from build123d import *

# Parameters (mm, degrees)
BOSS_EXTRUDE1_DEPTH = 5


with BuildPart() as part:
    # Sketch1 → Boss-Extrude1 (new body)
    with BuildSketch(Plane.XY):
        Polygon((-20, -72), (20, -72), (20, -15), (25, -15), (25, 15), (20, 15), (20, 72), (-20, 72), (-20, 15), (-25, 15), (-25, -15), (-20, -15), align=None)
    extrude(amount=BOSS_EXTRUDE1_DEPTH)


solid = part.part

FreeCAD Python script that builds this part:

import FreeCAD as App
import Part
import Sketcher
from FreeCAD import Vector

doc = App.newDocument("Part")
params = doc.addObject("Spreadsheet::Sheet", "Params")
for row, (alias, value) in enumerate([
    ("sketch1_width", "40 mm"),
    ("sketch1_width2", "5 mm"),
    ("sketch1_height", "57 mm"),
    ("sketch1_height2", "30 mm"),
    ("pad1_length", "5 mm"),
], start=1):
    params.set(f"A{row}", alias)
    params.set(f"B{row}", "=" + value)
    params.setAlias(f"B{row}", alias)

body = doc.addObject("PartDesign::Body", "Body")

# Sketch on XY plane
sketch1 = body.newObject("Sketcher::SketchObject", "Sketch")
sketch1.AttachmentSupport = (doc.getObject("XY_Plane"), [""])
sketch1.MapMode = "FlatFace"
sketch1.addGeometry(Part.LineSegment(Vector(-20, -72, 0), Vector(20, -72, 0)), False)
sketch1.addGeometry(Part.LineSegment(Vector(20, -72, 0), Vector(20, -15, 0)), False)
sketch1.addGeometry(Part.LineSegment(Vector(20, -15, 0), Vector(25, -15, 0)), False)
sketch1.addGeometry(Part.LineSegment(Vector(25, -15, 0), Vector(25, 15, 0)), False)
sketch1.addGeometry(Part.LineSegment(Vector(25, 15, 0), Vector(20, 15, 0)), False)
sketch1.addGeometry(Part.LineSegment(Vector(20, 15, 0), Vector(20, 72, 0)), False)
sketch1.addGeometry(Part.LineSegment(Vector(20, 72, 0), Vector(-20, 72, 0)), False)
sketch1.addGeometry(Part.LineSegment(Vector(-20, 72, 0), Vector(-20, 15, 0)), False)
sketch1.addGeometry(Part.LineSegment(Vector(-20, 15, 0), Vector(-25, 15, 0)), False)
sketch1.addGeometry(Part.LineSegment(Vector(-25, 15, 0), Vector(-25, -15, 0)), False)
sketch1.addGeometry(Part.LineSegment(Vector(-25, -15, 0), Vector(-20, -15, 0)), False)
sketch1.addGeometry(Part.LineSegment(Vector(-20, -15, 0), Vector(-20, -72, 0)), False)
sketch1.addConstraint(Sketcher.Constraint("Coincident", 0, 2, 1, 1))
sketch1.addConstraint(Sketcher.Constraint("Coincident", 1, 2, 2, 1))
sketch1.addConstraint(Sketcher.Constraint("Coincident", 2, 2, 3, 1))
sketch1.addConstraint(Sketcher.Constraint("Coincident", 3, 2, 4, 1))
sketch1.addConstraint(Sketcher.Constraint("Coincident", 4, 2, 5, 1))
sketch1.addConstraint(Sketcher.Constraint("Coincident", 5, 2, 6, 1))
sketch1.addConstraint(Sketcher.Constraint("Coincident", 6, 2, 7, 1))
sketch1.addConstraint(Sketcher.Constraint("Coincident", 7, 2, 8, 1))
sketch1.addConstraint(Sketcher.Constraint("Coincident", 8, 2, 9, 1))
sketch1.addConstraint(Sketcher.Constraint("Coincident", 9, 2, 10, 1))
sketch1.addConstraint(Sketcher.Constraint("Coincident", 10, 2, 11, 1))
sketch1.addConstraint(Sketcher.Constraint("Coincident", 11, 2, 0, 1))
sketch1.addConstraint(Sketcher.Constraint("Horizontal", 0))
sketch1.addConstraint(Sketcher.Constraint("Vertical", 1))
sketch1.addConstraint(Sketcher.Constraint("Horizontal", 2))
sketch1.addConstraint(Sketcher.Constraint("Vertical", 3))
sketch1.addConstraint(Sketcher.Constraint("Horizontal", 4))
sketch1.addConstraint(Sketcher.Constraint("Vertical", 5))
sketch1.addConstraint(Sketcher.Constraint("Horizontal", 6))
sketch1.addConstraint(Sketcher.Constraint("Vertical", 7))
sketch1.addConstraint(Sketcher.Constraint("Horizontal", 8))
sketch1.addConstraint(Sketcher.Constraint("Vertical", 9))
sketch1.addConstraint(Sketcher.Constraint("Horizontal", 10))
sketch1.addConstraint(Sketcher.Constraint("Vertical", 11))
sketch1.addConstraint(Sketcher.Constraint("Symmetric", 0, 2, 6, 2, -1, 1))
sketch1.addConstraint(Sketcher.Constraint("Symmetric", 2, 2, 8, 2, -1, 1))
sketch1.addConstraint(Sketcher.Constraint("Symmetric", 4, 2, 10, 2, -1, 1))
sketch1.addConstraint(Sketcher.Constraint("Symmetric", 4, 2, 7, 2, -2))
sketch1.addConstraint(Sketcher.Constraint("DistanceX", 0, 1, 0, 2, 40.0))
sketch1.addConstraint(Sketcher.Constraint("DistanceX", 2, 1, 2, 2, 5.0))
sketch1.addConstraint(Sketcher.Constraint("DistanceY", 1, 1, 1, 2, 57.0))
sketch1.addConstraint(Sketcher.Constraint("DistanceY", 3, 1, 3, 2, 30.0))
sketch1.setExpression("Constraints[28]", "Params.sketch1_width")
sketch1.setExpression("Constraints[29]", "Params.sketch1_width2")
sketch1.setExpression("Constraints[30]", "Params.sketch1_height")
sketch1.setExpression("Constraints[31]", "Params.sketch1_height2")
pad1 = body.newObject("PartDesign::Pad", "Pad")
pad1.Profile = sketch1
pad1.setExpression("Length", "Params.pad1_length")

doc.recompute()
